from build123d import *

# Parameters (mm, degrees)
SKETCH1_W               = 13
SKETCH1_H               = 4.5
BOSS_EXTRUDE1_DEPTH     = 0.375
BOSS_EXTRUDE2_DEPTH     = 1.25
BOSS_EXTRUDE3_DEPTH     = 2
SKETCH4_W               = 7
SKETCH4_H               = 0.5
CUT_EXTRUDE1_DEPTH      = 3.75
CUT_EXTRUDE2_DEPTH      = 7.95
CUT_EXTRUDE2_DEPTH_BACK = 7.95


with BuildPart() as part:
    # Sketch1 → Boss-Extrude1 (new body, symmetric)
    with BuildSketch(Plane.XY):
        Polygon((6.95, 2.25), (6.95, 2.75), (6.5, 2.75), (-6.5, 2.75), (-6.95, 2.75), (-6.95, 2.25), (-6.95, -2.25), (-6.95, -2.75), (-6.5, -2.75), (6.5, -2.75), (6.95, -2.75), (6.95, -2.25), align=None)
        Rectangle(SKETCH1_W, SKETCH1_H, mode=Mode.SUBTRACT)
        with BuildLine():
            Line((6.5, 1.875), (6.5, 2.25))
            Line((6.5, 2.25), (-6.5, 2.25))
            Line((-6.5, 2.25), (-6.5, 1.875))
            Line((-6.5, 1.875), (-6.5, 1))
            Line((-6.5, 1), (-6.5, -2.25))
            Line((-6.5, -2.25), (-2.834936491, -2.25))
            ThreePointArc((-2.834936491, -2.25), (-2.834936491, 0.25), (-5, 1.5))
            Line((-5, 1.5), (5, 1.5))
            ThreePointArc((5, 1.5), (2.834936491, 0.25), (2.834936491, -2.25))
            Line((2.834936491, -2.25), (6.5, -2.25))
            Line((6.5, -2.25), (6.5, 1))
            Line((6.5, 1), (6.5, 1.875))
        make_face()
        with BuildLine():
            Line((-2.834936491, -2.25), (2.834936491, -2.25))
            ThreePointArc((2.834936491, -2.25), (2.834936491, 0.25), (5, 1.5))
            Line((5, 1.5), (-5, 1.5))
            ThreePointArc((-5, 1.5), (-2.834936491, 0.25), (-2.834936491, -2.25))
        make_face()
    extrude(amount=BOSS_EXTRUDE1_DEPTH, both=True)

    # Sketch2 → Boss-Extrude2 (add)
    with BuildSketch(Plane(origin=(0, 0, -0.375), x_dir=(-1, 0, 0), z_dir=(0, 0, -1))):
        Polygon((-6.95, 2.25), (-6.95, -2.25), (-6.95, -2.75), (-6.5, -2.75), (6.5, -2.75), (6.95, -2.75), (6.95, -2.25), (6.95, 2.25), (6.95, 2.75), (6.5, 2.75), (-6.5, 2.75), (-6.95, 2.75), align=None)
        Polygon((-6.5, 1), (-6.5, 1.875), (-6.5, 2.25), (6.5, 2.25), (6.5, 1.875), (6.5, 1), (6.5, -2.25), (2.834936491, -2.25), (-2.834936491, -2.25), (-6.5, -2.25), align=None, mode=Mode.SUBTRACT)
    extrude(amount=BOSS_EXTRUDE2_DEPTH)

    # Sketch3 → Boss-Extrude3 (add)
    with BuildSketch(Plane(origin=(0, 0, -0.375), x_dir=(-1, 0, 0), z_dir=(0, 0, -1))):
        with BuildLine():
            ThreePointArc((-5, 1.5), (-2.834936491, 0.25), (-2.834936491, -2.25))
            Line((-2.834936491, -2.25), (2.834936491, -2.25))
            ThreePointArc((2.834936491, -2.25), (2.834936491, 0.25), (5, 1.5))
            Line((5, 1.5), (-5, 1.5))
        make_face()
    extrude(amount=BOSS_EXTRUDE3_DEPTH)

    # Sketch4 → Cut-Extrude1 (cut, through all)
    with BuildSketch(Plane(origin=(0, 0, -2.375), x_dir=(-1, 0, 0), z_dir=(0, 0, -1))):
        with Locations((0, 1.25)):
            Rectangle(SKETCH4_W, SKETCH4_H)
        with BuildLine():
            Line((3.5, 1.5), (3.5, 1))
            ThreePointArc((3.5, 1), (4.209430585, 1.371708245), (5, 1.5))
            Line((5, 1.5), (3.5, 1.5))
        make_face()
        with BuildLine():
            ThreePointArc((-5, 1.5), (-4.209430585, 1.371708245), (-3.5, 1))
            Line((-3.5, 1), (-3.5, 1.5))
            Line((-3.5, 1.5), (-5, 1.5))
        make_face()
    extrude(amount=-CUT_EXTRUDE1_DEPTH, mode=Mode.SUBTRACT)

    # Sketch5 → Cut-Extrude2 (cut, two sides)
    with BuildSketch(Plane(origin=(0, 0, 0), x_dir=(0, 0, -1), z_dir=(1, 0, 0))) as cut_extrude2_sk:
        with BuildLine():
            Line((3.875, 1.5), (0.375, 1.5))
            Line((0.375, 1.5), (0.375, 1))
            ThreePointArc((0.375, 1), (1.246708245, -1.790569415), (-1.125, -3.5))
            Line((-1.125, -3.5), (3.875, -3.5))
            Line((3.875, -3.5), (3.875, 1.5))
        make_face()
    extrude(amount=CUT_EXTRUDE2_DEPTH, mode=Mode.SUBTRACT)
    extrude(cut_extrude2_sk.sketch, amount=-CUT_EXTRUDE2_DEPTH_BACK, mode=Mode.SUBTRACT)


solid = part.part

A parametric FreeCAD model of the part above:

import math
import FreeCAD as App
import Part
import Sketcher

V = App.Vector


def add_polygon(sketch, points):
    """Adds a closed chain of lines whose ends are joined by coincident constraints."""
    first, n = sketch.GeometryCount, len(points)
    for a, b in zip(points, points[1:] + points[:1]):
        sketch.addGeometry(Part.LineSegment(App.Vector(*a, 0), App.Vector(*b, 0)), False)
    for i in range(n):
        sketch.addConstraint(Sketcher.Constraint("Coincident", first + i, 2, first + (i + 1) % n, 1))

doc = App.newDocument("Part")
body = doc.addObject("PartDesign::Body", "Body")

sketch1 = body.newObject("Sketcher::SketchObject", "Sketch")
sketch1.AttachmentSupport = (doc.getObject("XY_Plane"), [""])
sketch1.MapMode = "FlatFace"
add_polygon(sketch1, [(7, 3), (-7, 3), (-7, -3), (7, -3)])
sketch1.addConstraint(Sketcher.Constraint("Horizontal", 0))
sketch1.addConstraint(Sketcher.Constraint("Vertical", 1))
sketch1.addConstraint(Sketcher.Constraint("Horizontal", 2))
sketch1.addConstraint(Sketcher.Constraint("Vertical", 3))
sketch1.addConstraint(Sketcher.Constraint("Symmetric", 0, 2, 2, 2, -1, 1))
sketch1.addConstraint(Sketcher.Constraint("DistanceX", 0, 2, 0, 1, 13.9))
sketch1.addConstraint(Sketcher.Constraint("DistanceY", 1, 2, 1, 1, 5.5))
pad1 = body.newObject("PartDesign::Pad", "Pad")
pad1.Profile = sketch1
pad1.Length = 0.75
pad1.Midplane = True

sketch2 = body.newObject("Sketcher::SketchObject", "Sketch001")
sketch2.AttachmentSupport = (doc.getObject("XY_Plane"), [""])
sketch2.MapMode = "FlatFace"
sketch2.AttachmentOffset = App.Placement(V(0, 0, -0.375), App.Rotation())
add_polygon(sketch2, [(7, -2.8), (-7, -2.8), (-7, 2.8), (7, 2.8)])
add_polygon(sketch2, [(6.5, -2.2), (6.5, 2.2), (-6.5, 2.2), (-6.5, -2.2)])
sketch2.addConstraint(Sketcher.Constraint("Horizontal", 0))
sketch2.addConstraint(Sketcher.Constraint("Vertical", 1))
sketch2.addConstraint(Sketcher.Constraint("Horizontal", 2))
sketch2.addConstraint(Sketcher.Constraint("Vertical", 3))
sketch2.addConstraint(Sketcher.Constraint("Vertical", 4))
sketch2.addConstraint(Sketcher.Constraint("Horizontal", 5))
sketch2.addConstraint(Sketcher.Constraint("Vertical", 6))
sketch2.addConstraint(Sketcher.Constraint("Horizontal", 7))
sketch2.addConstraint(Sketcher.Constraint("Symmetric", 0, 2, 2, 2, -1, 1))
sketch2.addConstraint(Sketcher.Constraint("Symmetric", 4, 2, 6, 2, -1, 1))
sketch2.addConstraint(Sketcher.Constraint("DistanceX", 5, 2, 5, 1, 13.0))
sketch2.addConstraint(Sketcher.Constraint("DistanceX", 0, 2, 0, 1, 13.9))
sketch2.addConstraint(Sketcher.Constraint("DistanceY", 1, 1, 1, 2, 5.5))
sketch2.addConstraint(Sketcher.Constraint("DistanceY", 4, 1, 4, 2, 4.5))
pad2 = body.newObject("PartDesign::Pad", "Pad001")
pad2.Profile = sketch2
pad2.Length = 1.25
pad2.Reversed = True

sketch3 = body.newObject("Sketcher::SketchObject", "Sketch002")
sketch3.AttachmentSupport = (doc.getObject("XY_Plane"), [""])
sketch3.MapMode = "FlatFace"
sketch3.AttachmentOffset = App.Placement(V(0, 0, -0.375), App.Rotation())
sketch3.addGeometry(Part.ArcOfCircle(Part.Circle(V(5, -1, 0), V(0, 0, 1), 2.5), math.radians(90), math.radians(210)), False)
sketch3.addGeometry(Part.LineSegment(V(2.8, -2.2, 0), V(-2.8, -2.2, 0)), False)
sketch3.addGeometry(Part.ArcOfCircle(Part.Circle(V(-5, -1, 0), V(0, 0, 1), 2.5), math.radians(-30), math.radians(90)), False)
sketch3.addGeometry(Part.LineSegment(V(-5, 1.5, 0), V(5, 1.5, 0)), False)
sketch3.addConstraint(Sketcher.Constraint("Coincident", 0, 2, 1, 1))
sketch3.addConstraint(Sketcher.Constraint("Coincident", 1, 2, 2, 1))
sketch3.addConstraint(Sketcher.Constraint("Tangent", 2, 2, 3, 1))
sketch3.addConstraint(Sketcher.Constraint("Tangent", 3, 2, 0, 1))
sketch3.addConstraint(Sketcher.Constraint("Horizontal", 1))
sketch3.addConstraint(Sketcher.Constraint("Horizontal", 3))
sketch3.addConstraint(Sketcher.Constraint("Equal", 0, 2))
sketch3.addConstraint(Sketcher.Constraint("Radius", 0, 2.5))
sketch3.addConstraint(Sketcher.Constraint("DistanceX", 3, 1, 3, 2, 10.0))
sketch3.addConstraint(Sketcher.Constraint("DistanceX", -1, 1, 0, 3, 5.0))
sketch3.addConstraint(Sketcher.Constraint("DistanceY", 0, 3, -1, 1, 1.0))
sketch3.addConstraint(Sketcher.Constraint("DistanceY", 0, 2, -1, 1, 2.25))
pad3 = body.newObject("PartDesign::Pad", "Pad002")
pad3.Profile = sketch3
pad3.Length = 2
pad3.Reversed = True

sketch4 = body.newObject("Sketcher::SketchObject", "Sketch003")
sketch4.AttachmentSupport = (doc.getObject("XY_Plane"), [""])
sketch4.MapMode = "FlatFace"
sketch4.AttachmentOffset = App.Placement(V(0, 0, -2.375), App.Rotation())
sketch4.addGeometry(Part.LineSegment(V(3.5, 1, 0), V(-3.5, 1, 0)), False)
sketch4.addGeometry(Part.ArcOfCircle(Part.Circle(V(-5, -1, 0), V(0, 0, 1), 2.5), math.radians(53), math.radians(90)), False)
sketch4.addGeometry(Part.LineSegment(V(-5, 1.5, 0), V(5, 1.5, 0)), False)
sketch4.addGeometry(Part.ArcOfCircle(Part.Circle(V(5, -1, 0), V(0, 0, 1), 2.5), math.radians(90), math.radians(127)), False)
sketch4.addConstraint(Sketcher.Constraint("Coincident", 0, 2, 1, 1))
sketch4.addConstraint(Sketcher.Constraint("Tangent", 1, 2, 2, 1))
sketch4.addConstraint(Sketcher.Constraint("Tangent", 2, 2, 3, 1))
sketch4.addConstraint(Sketcher.Constraint("Coincident", 3, 2, 0, 1))
sketch4.addConstraint(Sketcher.Constraint("Horizontal", 0))
sketch4.addConstraint(Sketcher.Constraint("Horizontal", 2))
sketch4.addConstraint(Sketcher.Constraint("Equal", 1, 3))
sketch4.addConstraint(Sketcher.Constraint("Radius", 1, 2.5))
sketch4.addConstraint(Sketcher.Constraint("DistanceX", 0, 2, 0, 1, 7.0))
sketch4.addConstraint(Sketcher.Constraint("DistanceX", 2, 1, 2, 2, 10.0))
sketch4.addConstraint(Sketcher.Constraint("DistanceX", 1, 3, -1, 1, 5.0))
sketch4.addConstraint(Sketcher.Constraint("DistanceY", 1, 3, -1, 1, 1.0))
pocket1 = body.newObject("PartDesign::Pocket", "Pocket")
pocket1.Profile = sketch4
pocket1.Type = "ThroughAll"
pocket1.Reversed = True

sketch5 = body.newObject("Sketcher::SketchObject", "Sketch004")
sketch5.AttachmentSupport = (doc.getObject("YZ_Plane"), [""])
sketch5.MapMode = "FlatFace"
sketch5.addGeometry(Part.LineSegment(V(1.5, -3.9, 0), V(1.5, -0.4, 0)), False)
sketch5.addGeometry(Part.LineSegment(V(1.5, -0.4, 0), V(1, -0.4, 0)), False)
sketch5.addGeometry(Part.ArcOfCircle(Part.Circle(V(-1, 1.1, 0), V(0, 0, 1), 2.5), math.radians(180), math.radians(323)), False)
sketch5.addGeometry(Part.LineSegment(V(-3.5, 1.1, 0), V(-3.5, -3.9, 0)), False)
sketch5.addGeometry(Part.LineSegment(V(-3.5, -3.9, 0), V(1.5, -3.9, 0)), False)
sketch5.addConstraint(Sketcher.Constraint("Coincident", 0, 2, 1, 1))
sketch5.addConstraint(Sketcher.Constraint("Coincident", 1, 2, 2, 2))
sketch5.addConstraint(Sketcher.Constraint("Tangent", 2, 1, 3, 1))
sketch5.addConstraint(Sketcher.Constraint("Coincident", 3, 2, 4, 1))
sketch5.addConstraint(Sketcher.Constraint("Coincident", 4, 2, 0, 1))
sketch5.addConstraint(Sketcher.Constraint("Vertical", 0))
sketch5.addConstraint(Sketcher.Constraint("Horizontal", 1))
sketch5.addConstraint(Sketcher.Constraint("Vertical", 3))
sketch5.addConstraint(Sketcher.Constraint("Horizontal", 4))
sketch5.addConstraint(Sketcher.Constraint("Equal", 4, 3))
sketch5.addConstraint(Sketcher.Constraint("Radius", 2, 2.5))
sketch5.addConstraint(Sketcher.Constraint("DistanceX", 4, 1, 4, 2, 5.0))
sketch5.addConstraint(Sketcher.Constraint("DistanceX", 1, 2, 1, 1, 0.5))
sketch5.addConstraint(Sketcher.Constraint("DistanceX", 2, 3, -1, 1, 1.0))
sketch5.addConstraint(Sketcher.Constraint("DistanceY", -1, 1, 2, 3, 1.125))
pocket2 = body.newObject("PartDesign::Pocket", "Pocket001")
pocket2.Profile = sketch5
pocket2.Type = "ThroughAll"
pocket2.Midplane = True

doc.recompute()
